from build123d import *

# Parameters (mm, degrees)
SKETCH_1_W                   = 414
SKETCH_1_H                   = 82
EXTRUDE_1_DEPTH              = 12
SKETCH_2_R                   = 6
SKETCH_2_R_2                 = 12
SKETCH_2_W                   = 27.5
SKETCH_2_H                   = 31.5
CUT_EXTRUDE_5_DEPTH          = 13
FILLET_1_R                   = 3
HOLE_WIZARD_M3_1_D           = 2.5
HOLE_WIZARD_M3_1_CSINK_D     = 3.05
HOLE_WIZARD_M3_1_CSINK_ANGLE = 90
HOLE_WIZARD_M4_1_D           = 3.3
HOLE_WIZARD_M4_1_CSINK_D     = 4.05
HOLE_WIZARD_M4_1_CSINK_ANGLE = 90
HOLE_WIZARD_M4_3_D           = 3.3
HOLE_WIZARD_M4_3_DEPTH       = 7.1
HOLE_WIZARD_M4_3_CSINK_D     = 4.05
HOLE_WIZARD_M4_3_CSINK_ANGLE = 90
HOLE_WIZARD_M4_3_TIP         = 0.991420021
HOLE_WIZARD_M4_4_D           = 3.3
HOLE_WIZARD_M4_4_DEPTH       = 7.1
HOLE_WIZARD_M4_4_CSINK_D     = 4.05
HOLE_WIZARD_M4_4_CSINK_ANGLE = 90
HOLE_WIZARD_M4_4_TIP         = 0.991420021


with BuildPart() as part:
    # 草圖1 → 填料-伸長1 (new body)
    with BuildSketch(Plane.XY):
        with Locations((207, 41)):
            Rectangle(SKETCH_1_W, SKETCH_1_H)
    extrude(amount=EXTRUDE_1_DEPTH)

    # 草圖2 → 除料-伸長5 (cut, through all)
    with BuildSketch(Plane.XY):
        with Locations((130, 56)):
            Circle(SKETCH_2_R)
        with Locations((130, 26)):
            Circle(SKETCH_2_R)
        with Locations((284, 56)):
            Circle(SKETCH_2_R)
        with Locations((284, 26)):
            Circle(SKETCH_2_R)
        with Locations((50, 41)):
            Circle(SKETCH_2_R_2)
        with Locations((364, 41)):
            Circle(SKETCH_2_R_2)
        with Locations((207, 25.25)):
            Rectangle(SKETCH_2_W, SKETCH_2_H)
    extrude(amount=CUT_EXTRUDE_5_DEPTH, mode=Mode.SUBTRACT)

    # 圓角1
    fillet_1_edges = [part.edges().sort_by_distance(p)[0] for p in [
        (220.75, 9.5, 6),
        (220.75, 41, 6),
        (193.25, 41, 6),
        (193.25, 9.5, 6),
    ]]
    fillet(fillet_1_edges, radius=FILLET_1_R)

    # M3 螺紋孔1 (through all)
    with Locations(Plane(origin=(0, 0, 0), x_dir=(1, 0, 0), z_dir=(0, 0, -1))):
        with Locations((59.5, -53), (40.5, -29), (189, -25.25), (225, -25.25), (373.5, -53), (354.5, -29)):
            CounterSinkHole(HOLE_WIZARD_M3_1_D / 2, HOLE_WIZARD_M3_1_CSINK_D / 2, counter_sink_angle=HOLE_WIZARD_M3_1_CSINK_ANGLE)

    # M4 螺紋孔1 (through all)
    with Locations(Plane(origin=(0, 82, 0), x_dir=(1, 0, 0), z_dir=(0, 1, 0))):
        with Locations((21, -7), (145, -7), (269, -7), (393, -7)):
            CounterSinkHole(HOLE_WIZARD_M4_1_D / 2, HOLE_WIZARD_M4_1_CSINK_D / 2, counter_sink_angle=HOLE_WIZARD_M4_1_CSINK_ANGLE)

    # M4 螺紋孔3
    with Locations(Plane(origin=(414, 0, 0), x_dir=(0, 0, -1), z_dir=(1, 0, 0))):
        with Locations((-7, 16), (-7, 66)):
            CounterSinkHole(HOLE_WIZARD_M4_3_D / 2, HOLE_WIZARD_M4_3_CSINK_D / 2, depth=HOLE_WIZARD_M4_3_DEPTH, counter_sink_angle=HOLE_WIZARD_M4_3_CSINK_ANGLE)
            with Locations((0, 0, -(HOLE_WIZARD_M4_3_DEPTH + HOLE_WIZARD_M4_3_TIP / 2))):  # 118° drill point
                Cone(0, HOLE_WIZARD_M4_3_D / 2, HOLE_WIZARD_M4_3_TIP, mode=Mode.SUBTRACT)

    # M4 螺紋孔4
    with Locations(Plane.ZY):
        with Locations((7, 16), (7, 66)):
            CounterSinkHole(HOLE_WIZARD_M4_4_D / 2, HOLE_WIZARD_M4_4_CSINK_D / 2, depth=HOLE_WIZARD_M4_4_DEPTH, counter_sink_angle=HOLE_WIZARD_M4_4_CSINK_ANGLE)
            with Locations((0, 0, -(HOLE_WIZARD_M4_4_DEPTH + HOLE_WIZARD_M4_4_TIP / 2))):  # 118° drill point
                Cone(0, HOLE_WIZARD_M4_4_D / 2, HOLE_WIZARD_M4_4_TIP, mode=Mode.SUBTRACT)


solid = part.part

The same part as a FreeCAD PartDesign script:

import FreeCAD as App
import Part
import Sketcher
from FreeCAD import Vector
Q = App.Units.Quantity


def edges_at(feature, points):
    """Names of the edges that pass closest to the given points."""
    edges = feature.Shape.Edges
    near = lambda p: min(range(len(edges)), key=lambda i: edges[i].distToShape(Part.Vertex(*p))[0])
    return sorted({f"Edge{near(p) + 1}" for p in points})

doc = App.newDocument("Part")
body = doc.addObject("PartDesign::Body", "Body")

sketch1 = body.newObject("Sketcher::SketchObject", "Sketch")
sketch1.AttachmentSupport = (doc.getObject("XY_Plane"), [""])
sketch1.MapMode = "FlatFace"
sketch1.addGeometry(Part.LineSegment(Vector(0, 82, 0), Vector(0, 0, 0)), False)
sketch1.addGeometry(Part.LineSegment(Vector(0, 0, 0), Vector(414, 0, 0)), False)
sketch1.addGeometry(Part.LineSegment(Vector(414, 0, 0), Vector(414, 82, 0)), False)
sketch1.addGeometry(Part.LineSegment(Vector(414, 82, 0), Vector(0, 82, 0)), False)
sketch1.addConstraint(Sketcher.Constraint("Coincident", 0, 2, 1, 1))
sketch1.addConstraint(Sketcher.Constraint("Coincident", 1, 2, 2, 1))
sketch1.addConstraint(Sketcher.Constraint("Coincident", 2, 2, 3, 1))
sketch1.addConstraint(Sketcher.Constraint("Coincident", 3, 2, 0, 1))
sketch1.addConstraint(Sketcher.Constraint("Vertical", 0))
sketch1.addConstraint(Sketcher.Constraint("Horizontal", 1))
sketch1.addConstraint(Sketcher.Constraint("Vertical", 2))
sketch1.addConstraint(Sketcher.Constraint("Horizontal", 3))
sketch1.addConstraint(Sketcher.Constraint("Coincident", 0, 2, -1, 1))
sketch1.addConstraint(Sketcher.Constraint("DistanceX", 1, 1, 1, 2, Q("414 mm")))
sketch1.addConstraint(Sketcher.Constraint("DistanceY", 0, 2, 0, 1, Q("82 mm")))
pad1 = body.newObject("PartDesign::Pad", "Pad")
pad1.Profile = sketch1
pad1.Length = 12

sketch2 = body.newObject("Sketcher::SketchObject", "Sketch001")
sketch2.AttachmentSupport = (doc.getObject("XY_Plane"), [""])
sketch2.MapMode = "FlatFace"
sketch2.addGeometry(Part.Circle(Vector(130, 56, 0), Vector(0, 0, 1), 6), False)
sketch2.addGeometry(Part.Circle(Vector(130, 26, 0), Vector(0, 0, 1), 6), False)
sketch2.addGeometry(Part.Circle(Vector(284, 56, 0), Vector(0, 0, 1), 6), False)
sketch2.addGeometry(Part.Circle(Vector(284, 26, 0), Vector(0, 0, 1), 6), False)
sketch2.addGeometry(Part.Circle(Vector(50, 41, 0), Vector(0, 0, 1), 12), False)
sketch2.addGeometry(Part.Circle(Vector(364, 41, 0), Vector(0, 0, 1), 12), False)
sketch2.addGeometry(Part.LineSegment(Vector(193.25, 41, 0), Vector(193.25, 9.5, 0)), False)
sketch2.addGeometry(Part.LineSegment(Vector(193.25, 9.5, 0), Vector(220.75, 9.5, 0)), False)
sketch2.addGeometry(Part.LineSegment(Vector(220.75, 9.5, 0), Vector(220.75, 41, 0)), False)
sketch2.addGeometry(Part.LineSegment(Vector(220.75, 41, 0), Vector(193.25, 41, 0)), False)
sketch2.addConstraint(Sketcher.Constraint("Coincident", 6, 2, 7, 1))
sketch2.addConstraint(Sketcher.Constraint("Coincident", 7, 2, 8, 1))
sketch2.addConstraint(Sketcher.Constraint("Coincident", 8, 2, 9, 1))
sketch2.addConstraint(Sketcher.Constraint("Coincident", 9, 2, 6, 1))
sketch2.addConstraint(Sketcher.Constraint("Vertical", 6))
sketch2.addConstraint(Sketcher.Constraint("Horizontal", 7))
sketch2.addConstraint(Sketcher.Constraint("Vertical", 8))
sketch2.addConstraint(Sketcher.Constraint("Horizontal", 9))
sketch2.addConstraint(Sketcher.Constraint("Equal", 0, 1))
sketch2.addConstraint(Sketcher.Constraint("Equal", 1, 2))
sketch2.addConstraint(Sketcher.Constraint("Equal", 2, 3))
sketch2.addConstraint(Sketcher.Constraint("Equal", 4, 5))
sketch2.addConstraint(Sketcher.Constraint("Horizontal", 0, 3, 2, 3))
sketch2.addConstraint(Sketcher.Constraint("Horizontal", 1, 3, 3, 3))
sketch2.addConstraint(Sketcher.Constraint("Horizontal", 4, 3, 5, 3))
sketch2.addConstraint(Sketcher.Constraint("Horizontal", 5, 3, 8, 2))
sketch2.addConstraint(Sketcher.Constraint("Vertical", 0, 3, 1, 3))
sketch2.addConstraint(Sketcher.Constraint("Vertical", 2, 3, 3, 3))
sketch2.addConstraint(Sketcher.Constraint("Diameter", 0, Q("12 mm")))
sketch2.addConstraint(Sketcher.Constraint("Diameter", 4, Q("24 mm")))
sketch2.addConstraint(Sketcher.Constraint("DistanceX", 7, 1, 7, 2, Q("27.5 mm")))
sketch2.addConstraint(Sketcher.Constraint("DistanceY", 6, 2, 6, 1, Q("31.5 mm")))
sketch2.addConstraint(Sketcher.Constraint("DistanceX", -1, 1, 0, 3, Q("130 mm")))
sketch2.addConstraint(Sketcher.Constraint("DistanceY", -1, 1, 0, 3, Q("56 mm")))
sketch2.addConstraint(Sketcher.Constraint("DistanceY", -1, 1, 1, 3, Q("26 mm")))
sketch2.addConstraint(Sketcher.Constraint("DistanceX", -1, 1, 2, 3, Q("284 mm")))
sketch2.addConstraint(Sketcher.Constraint("DistanceX", -1, 1, 4, 3, Q("50 mm")))
sketch2.addConstraint(Sketcher.Constraint("DistanceY", -1, 1, 4, 3, Q("41 mm")))
sketch2.addConstraint(Sketcher.Constraint("DistanceX", -1, 1, 5, 3, Q("364 mm")))
sketch2.addConstraint(Sketcher.Constraint("DistanceX", -1, 1, 6, 2, Q("193.25 mm")))
pocket1 = body.newObject("PartDesign::Pocket", "Pocket")
pocket1.Profile = sketch2
pocket1.Type = "ThroughAll"
pocket1.Reversed = True
doc.recompute()

fillet = body.newObject("PartDesign::Fillet", "Fillet")
fillet.Base = (pocket1, edges_at(pocket1, [
    (220.75, 9.5, 6),
    (220.75, 41, 6),
    (193.25, 41, 6),
    (193.25, 9.5, 6),
]))
fillet.Radius = 3

sketch3 = body.newObject("Sketcher::SketchObject", "Sketch002")
sketch3.AttachmentSupport = (doc.getObject("XY_Plane"), [""])
sketch3.MapMode = "FlatFace"
sketch3.addGeometry(Part.Circle(Vector(59.5, 53, 0), Vector(0, 0, 1), 1.25), False)
sketch3.addGeometry(Part.Circle(Vector(40.5, 29, 0), Vector(0, 0, 1), 1.25), False)
sketch3.addGeometry(Part.Circle(Vector(189, 25.25, 0), Vector(0, 0, 1), 1.25), False)
sketch3.addGeometry(Part.Circle(Vector(225, 25.25, 0), Vector(0, 0, 1), 1.25), False)
sketch3.addGeometry(Part.Circle(Vector(373.5, 53, 0), Vector(0, 0, 1), 1.25), False)
sketch3.addGeometry(Part.Circle(Vector(354.5, 29, 0), Vector(0, 0, 1), 1.25), False)
sketch3.addConstraint(Sketcher.Constraint("Equal", 0, 1))
sketch3.addConstraint(Sketcher.Constraint("Equal", 1, 2))
sketch3.addConstraint(Sketcher.Constraint("Equal", 2, 3))
sketch3.addConstraint(Sketcher.Constraint("Equal", 3, 4))
sketch3.addConstraint(Sketcher.Constraint("Equal", 4, 5))
sketch3.addConstraint(Sketcher.Constraint("Horizontal", 2, 3, 3, 3))
sketch3.addConstraint(Sketcher.Constraint("Horizontal", 0, 3, 4, 3))
sketch3.addConstraint(Sketcher.Constraint("Horizontal", 1, 3, 5, 3))
sketch3.addConstraint(Sketcher.Constraint("Diameter", 0, Q("2.5 mm")))
sketch3.addConstraint(Sketcher.Constraint("DistanceY", -1, 1, 0, 3, Q("53 mm")))
sketch3.addConstraint(Sketcher.Constraint("DistanceY", -1, 1, 1, 3, Q("29 mm")))
sketch3.addConstraint(Sketcher.Constraint("DistanceX", -1, 1, 2, 3, Q("189 mm")))
sketch3.addConstraint(Sketcher.Constraint("DistanceX", -1, 1, 3, 3, Q("225 mm")))
sketch3.addConstraint(Sketcher.Constraint("DistanceX", 1, 3, 0, 3, Q("19 mm")))
sketch3.addConstraint(Sketcher.Constraint("DistanceX", 0, 3, 4, 3, Q("314 mm")))
sketch3.addConstraint(Sketcher.Constraint("DistanceX", 5, 3, 4, 3, Q("19 mm")))
sketch3.addConstraint(Sketcher.Constraint("DistanceX", -1, 1, 0, 3, Q("59.5 mm")))
sketch3.addConstraint(Sketcher.Constraint("DistanceY", -1, 1, 2, 3, Q("25.25 mm")))
doc.recompute()
hole = body.newObject("PartDesign::Hole", "Hole")
hole.Profile = sketch3
hole.ThreadType = "None"
hole.Diameter = 2.5
hole.DepthType = "ThroughAll"
hole.HoleCutType = "Countersink"
hole.HoleCutDiameter = 3.05
hole.HoleCutCountersinkAngle = 90
hole.Reversed = True

sketch4 = body.newObject("Sketcher::SketchObject", "Sketch003")
sketch4.AttachmentSupport = (doc.getObject("XZ_Plane"), [""])
sketch4.MapMode = "FlatFace"
sketch4.AttachmentOffset = App.Placement(Vector(0, 0, -82), App.Rotation())
sketch4.addGeometry(Part.Circle(Vector(21, 7, 0), Vector(0, 0, 1), 1.65), False)
sketch4.addGeometry(Part.Circle(Vector(145, 7, 0), Vector(0, 0, 1), 1.65), False)
sketch4.addGeometry(Part.Circle(Vector(269, 7, 0), Vector(0, 0, 1), 1.65), False)
sketch4.addGeometry(Part.Circle(Vector(393, 7, 0), Vector(0, 0, 1), 1.65), False)
sketch4.addConstraint(Sketcher.Constraint("Equal", 0, 1))
sketch4.addConstraint(Sketcher.Constraint("Equal", 1, 2))
sketch4.addConstraint(Sketcher.Constraint("Equal", 2, 3))
sketch4.addConstraint(Sketcher.Constraint("Horizontal", 0, 3, 1, 3))
sketch4.addConstraint(Sketcher.Constraint("Horizontal", 1, 3, 2, 3))
sketch4.addConstraint(Sketcher.Constraint("Horizontal", 2, 3, 3, 3))
sketch4.addConstraint(Sketcher.Constraint("Diameter", 0, Q("3.3 mm")))
sketch4.addConstraint(Sketcher.Constraint("DistanceX", -1, 1, 0, 3, Q("21 mm")))
sketch4.addConstraint(Sketcher.Constraint("DistanceY", -1, 1, 0, 3, Q("7 mm")))
sketch4.addConstraint(Sketcher.Constraint("DistanceX", -1, 1, 1, 3, Q("145 mm")))
sketch4.addConstraint(Sketcher.Constraint("DistanceX", -1, 1, 2, 3, Q("269 mm")))
sketch4.addConstraint(Sketcher.Constraint("DistanceX", -1, 1, 3, 3, Q("393 mm")))
doc.recompute()
hole2 = body.newObject("PartDesign::Hole", "Hole001")
hole2.Profile = sketch4
hole2.ThreadType = "None"
hole2.Diameter = 3.3
hole2.DepthType = "ThroughAll"
hole2.HoleCutType = "Countersink"
hole2.HoleCutDiameter = 4.05
hole2.HoleCutCountersinkAngle = 90
hole2.Reversed = True

sketch5 = body.newObject("Sketcher::SketchObject", "Sketch004")
sketch5.AttachmentSupport = (doc.getObject("YZ_Plane"), [""])
sketch5.MapMode = "FlatFace"
sketch5.AttachmentOffset = App.Placement(Vector(0, 0, 414), App.Rotation())
sketch5.addGeometry(Part.Circle(Vector(16, 7, 0), Vector(0, 0, 1), 1.65), False)
sketch5.addGeometry(Part.Circle(Vector(66, 7, 0), Vector(0, 0, 1), 1.65), False)
sketch5.addConstraint(Sketcher.Constraint("Equal", 0, 1))
sketch5.addConstraint(Sketcher.Constraint("Horizontal", 0, 3, 1, 3))
sketch5.addConstraint(Sketcher.Constraint("Diameter", 0, Q("3.3 mm")))
sketch5.addConstraint(Sketcher.Constraint("DistanceX", -1, 1, 0, 3, Q("16 mm")))
sketch5.addConstraint(Sketcher.Constraint("DistanceY", -1, 1, 0, 3, Q("7 mm")))
sketch5.addConstraint(Sketcher.Constraint("DistanceX", -1, 1, 1, 3, Q("66 mm")))
doc.recompute()
hole3 = body.newObject("PartDesign::Hole", "Hole002")
hole3.Profile = sketch5
hole3.ThreadType = "None"
hole3.Diameter = 3.3
hole3.DepthType = "Dimension"
hole3.Depth = 7.1
hole3.DrillPoint = "Angled"
hole3.DrillPointAngle = 118
hole3.HoleCutType = "Countersink"
hole3.HoleCutDiameter = 4.05
hole3.HoleCutCountersinkAngle = 90

sketch6 = body.newObject("Sketcher::SketchObject", "Sketch005")
sketch6.AttachmentSupport = (doc.getObject("YZ_Plane"), [""])
sketch6.MapMode = "FlatFace"
sketch6.addGeometry(Part.Circle(Vector(16, 7, 0), Vector(0, 0, 1), 1.65), False)
sketch6.addGeometry(Part.Circle(Vector(66, 7, 0), Vector(0, 0, 1), 1.65), False)
sketch6.addConstraint(Sketcher.Constraint("Equal", 0, 1))
sketch6.addConstraint(Sketcher.Constraint("Horizontal", 0, 3, 1, 3))
sketch6.addConstraint(Sketcher.Constraint("Diameter", 0, Q("3.3 mm")))
sketch6.addConstraint(Sketcher.Constraint("DistanceX", -1, 1, 0, 3, Q("16 mm")))
sketch6.addConstraint(Sketcher.Constraint("DistanceY", -1, 1, 0, 3, Q("7 mm")))
sketch6.addConstraint(Sketcher.Constraint("DistanceX", -1, 1, 1, 3, Q("66 mm")))
doc.recompute()
hole4 = body.newObject("PartDesign::Hole", "Hole003")
hole4.Profile = sketch6
hole4.ThreadType = "None"
hole4.Diameter = 3.3
hole4.DepthType = "Dimension"
hole4.Depth = 7.1
hole4.DrillPoint = "Angled"
hole4.DrillPointAngle = 118
hole4.HoleCutType = "Countersink"
hole4.HoleCutDiameter = 4.05
hole4.HoleCutCountersinkAngle = 90
hole4.Reversed = True

doc.recompute()
